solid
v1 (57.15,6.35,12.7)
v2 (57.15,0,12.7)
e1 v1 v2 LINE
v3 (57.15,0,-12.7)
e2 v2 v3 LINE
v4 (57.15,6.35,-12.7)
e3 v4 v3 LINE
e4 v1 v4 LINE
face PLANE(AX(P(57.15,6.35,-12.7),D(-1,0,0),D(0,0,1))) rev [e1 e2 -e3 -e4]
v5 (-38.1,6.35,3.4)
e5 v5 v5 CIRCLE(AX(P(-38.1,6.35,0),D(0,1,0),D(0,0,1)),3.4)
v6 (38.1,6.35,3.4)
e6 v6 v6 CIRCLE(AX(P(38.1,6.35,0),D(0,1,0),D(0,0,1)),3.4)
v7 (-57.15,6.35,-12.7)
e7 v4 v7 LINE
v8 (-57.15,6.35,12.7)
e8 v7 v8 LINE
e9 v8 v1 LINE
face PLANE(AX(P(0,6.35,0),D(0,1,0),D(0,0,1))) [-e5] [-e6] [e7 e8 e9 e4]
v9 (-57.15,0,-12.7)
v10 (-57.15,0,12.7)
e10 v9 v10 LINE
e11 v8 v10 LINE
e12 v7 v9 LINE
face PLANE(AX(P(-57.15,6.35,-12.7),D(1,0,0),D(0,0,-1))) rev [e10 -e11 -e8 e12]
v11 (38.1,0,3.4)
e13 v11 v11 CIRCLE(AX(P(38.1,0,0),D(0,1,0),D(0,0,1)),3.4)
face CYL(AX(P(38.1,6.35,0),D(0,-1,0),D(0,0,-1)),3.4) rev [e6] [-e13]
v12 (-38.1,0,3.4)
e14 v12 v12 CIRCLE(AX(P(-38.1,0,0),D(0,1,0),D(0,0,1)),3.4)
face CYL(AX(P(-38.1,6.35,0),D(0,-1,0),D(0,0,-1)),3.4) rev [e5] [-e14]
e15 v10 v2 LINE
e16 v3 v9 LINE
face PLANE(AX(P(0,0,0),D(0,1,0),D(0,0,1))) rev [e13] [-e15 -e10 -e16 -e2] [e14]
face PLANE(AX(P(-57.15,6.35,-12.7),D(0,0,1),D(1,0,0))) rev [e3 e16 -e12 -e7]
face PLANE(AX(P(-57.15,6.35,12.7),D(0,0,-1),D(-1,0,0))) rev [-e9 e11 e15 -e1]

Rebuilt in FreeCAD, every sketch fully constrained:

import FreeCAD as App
import Part
import Sketcher
from FreeCAD import Vector
Q = App.Units.Quantity


def add_polygon(sketch, points):
    """Adds a closed chain of lines whose ends are joined by coincident constraints."""
    first, n = sketch.GeometryCount, len(points)
    for a, b in zip(points, points[1:] + points[:1]):
        sketch.addGeometry(Part.LineSegment(App.Vector(*a, 0), App.Vector(*b, 0)), False)
    for i in range(n):
        sketch.addConstraint(Sketcher.Constraint("Coincident", first + i, 2, first + (i + 1) % n, 1))

doc = App.newDocument("Part")
body = doc.addObject("PartDesign::Body", "Body")

# Sketch on XZ plane
sketch1 = body.newObject("Sketcher::SketchObject", "Sketch")
sketch1.AttachmentSupport = (doc.getObject("XZ_Plane"), [""])
sketch1.MapMode = "FlatFace"
add_polygon(sketch1, [(-57.15, -12.7), (-57.15, 12.7), (57.15, 12.7), (57.15, -12.7)])  # lines 0-3
sketch1.addGeometry(Part.Circle(Vector(-38.1, 0, 0), Vector(0, 0, 1), 3.4), False)  # 4
sketch1.addGeometry(Part.Circle(Vector(38.1, 0, 0), Vector(0, 0, 1), 3.4), False)  # 5
sketch1.addConstraint(Sketcher.Constraint("Vertical", 0))
sketch1.addConstraint(Sketcher.Constraint("Horizontal", 1))
sketch1.addConstraint(Sketcher.Constraint("Vertical", 2))
sketch1.addConstraint(Sketcher.Constraint("Horizontal", 3))
sketch1.addConstraint(Sketcher.Constraint("Equal", 4, 5))
sketch1.addConstraint(Sketcher.Constraint("Symmetric", 4, 3, 5, 3, -1, 1))
sketch1.addConstraint(Sketcher.Constraint("Symmetric", 0, 2, 2, 2, -1, 1))
sketch1.addConstraint(Sketcher.Constraint("PointOnObject", 4, 3, -1))
sketch1.addConstraint(Sketcher.Constraint("DistanceY", 0, 1, 0, 2, Q("1 in")))
sketch1.addConstraint(Sketcher.Constraint("DistanceX", 1, 1, 1, 2, Q("4.5 in")))
sketch1.addConstraint(Sketcher.Constraint("DistanceX", 4, 3, 5, 3, Q("3 in")))
sketch1.addConstraint(Sketcher.Constraint("Diameter", 4, 6.8))
pad1 = body.newObject("PartDesign::Pad", "Pad")
pad1.Profile = sketch1
pad1.Length = Q("0.25 in")
pad1.Reversed = True

doc.recompute()
